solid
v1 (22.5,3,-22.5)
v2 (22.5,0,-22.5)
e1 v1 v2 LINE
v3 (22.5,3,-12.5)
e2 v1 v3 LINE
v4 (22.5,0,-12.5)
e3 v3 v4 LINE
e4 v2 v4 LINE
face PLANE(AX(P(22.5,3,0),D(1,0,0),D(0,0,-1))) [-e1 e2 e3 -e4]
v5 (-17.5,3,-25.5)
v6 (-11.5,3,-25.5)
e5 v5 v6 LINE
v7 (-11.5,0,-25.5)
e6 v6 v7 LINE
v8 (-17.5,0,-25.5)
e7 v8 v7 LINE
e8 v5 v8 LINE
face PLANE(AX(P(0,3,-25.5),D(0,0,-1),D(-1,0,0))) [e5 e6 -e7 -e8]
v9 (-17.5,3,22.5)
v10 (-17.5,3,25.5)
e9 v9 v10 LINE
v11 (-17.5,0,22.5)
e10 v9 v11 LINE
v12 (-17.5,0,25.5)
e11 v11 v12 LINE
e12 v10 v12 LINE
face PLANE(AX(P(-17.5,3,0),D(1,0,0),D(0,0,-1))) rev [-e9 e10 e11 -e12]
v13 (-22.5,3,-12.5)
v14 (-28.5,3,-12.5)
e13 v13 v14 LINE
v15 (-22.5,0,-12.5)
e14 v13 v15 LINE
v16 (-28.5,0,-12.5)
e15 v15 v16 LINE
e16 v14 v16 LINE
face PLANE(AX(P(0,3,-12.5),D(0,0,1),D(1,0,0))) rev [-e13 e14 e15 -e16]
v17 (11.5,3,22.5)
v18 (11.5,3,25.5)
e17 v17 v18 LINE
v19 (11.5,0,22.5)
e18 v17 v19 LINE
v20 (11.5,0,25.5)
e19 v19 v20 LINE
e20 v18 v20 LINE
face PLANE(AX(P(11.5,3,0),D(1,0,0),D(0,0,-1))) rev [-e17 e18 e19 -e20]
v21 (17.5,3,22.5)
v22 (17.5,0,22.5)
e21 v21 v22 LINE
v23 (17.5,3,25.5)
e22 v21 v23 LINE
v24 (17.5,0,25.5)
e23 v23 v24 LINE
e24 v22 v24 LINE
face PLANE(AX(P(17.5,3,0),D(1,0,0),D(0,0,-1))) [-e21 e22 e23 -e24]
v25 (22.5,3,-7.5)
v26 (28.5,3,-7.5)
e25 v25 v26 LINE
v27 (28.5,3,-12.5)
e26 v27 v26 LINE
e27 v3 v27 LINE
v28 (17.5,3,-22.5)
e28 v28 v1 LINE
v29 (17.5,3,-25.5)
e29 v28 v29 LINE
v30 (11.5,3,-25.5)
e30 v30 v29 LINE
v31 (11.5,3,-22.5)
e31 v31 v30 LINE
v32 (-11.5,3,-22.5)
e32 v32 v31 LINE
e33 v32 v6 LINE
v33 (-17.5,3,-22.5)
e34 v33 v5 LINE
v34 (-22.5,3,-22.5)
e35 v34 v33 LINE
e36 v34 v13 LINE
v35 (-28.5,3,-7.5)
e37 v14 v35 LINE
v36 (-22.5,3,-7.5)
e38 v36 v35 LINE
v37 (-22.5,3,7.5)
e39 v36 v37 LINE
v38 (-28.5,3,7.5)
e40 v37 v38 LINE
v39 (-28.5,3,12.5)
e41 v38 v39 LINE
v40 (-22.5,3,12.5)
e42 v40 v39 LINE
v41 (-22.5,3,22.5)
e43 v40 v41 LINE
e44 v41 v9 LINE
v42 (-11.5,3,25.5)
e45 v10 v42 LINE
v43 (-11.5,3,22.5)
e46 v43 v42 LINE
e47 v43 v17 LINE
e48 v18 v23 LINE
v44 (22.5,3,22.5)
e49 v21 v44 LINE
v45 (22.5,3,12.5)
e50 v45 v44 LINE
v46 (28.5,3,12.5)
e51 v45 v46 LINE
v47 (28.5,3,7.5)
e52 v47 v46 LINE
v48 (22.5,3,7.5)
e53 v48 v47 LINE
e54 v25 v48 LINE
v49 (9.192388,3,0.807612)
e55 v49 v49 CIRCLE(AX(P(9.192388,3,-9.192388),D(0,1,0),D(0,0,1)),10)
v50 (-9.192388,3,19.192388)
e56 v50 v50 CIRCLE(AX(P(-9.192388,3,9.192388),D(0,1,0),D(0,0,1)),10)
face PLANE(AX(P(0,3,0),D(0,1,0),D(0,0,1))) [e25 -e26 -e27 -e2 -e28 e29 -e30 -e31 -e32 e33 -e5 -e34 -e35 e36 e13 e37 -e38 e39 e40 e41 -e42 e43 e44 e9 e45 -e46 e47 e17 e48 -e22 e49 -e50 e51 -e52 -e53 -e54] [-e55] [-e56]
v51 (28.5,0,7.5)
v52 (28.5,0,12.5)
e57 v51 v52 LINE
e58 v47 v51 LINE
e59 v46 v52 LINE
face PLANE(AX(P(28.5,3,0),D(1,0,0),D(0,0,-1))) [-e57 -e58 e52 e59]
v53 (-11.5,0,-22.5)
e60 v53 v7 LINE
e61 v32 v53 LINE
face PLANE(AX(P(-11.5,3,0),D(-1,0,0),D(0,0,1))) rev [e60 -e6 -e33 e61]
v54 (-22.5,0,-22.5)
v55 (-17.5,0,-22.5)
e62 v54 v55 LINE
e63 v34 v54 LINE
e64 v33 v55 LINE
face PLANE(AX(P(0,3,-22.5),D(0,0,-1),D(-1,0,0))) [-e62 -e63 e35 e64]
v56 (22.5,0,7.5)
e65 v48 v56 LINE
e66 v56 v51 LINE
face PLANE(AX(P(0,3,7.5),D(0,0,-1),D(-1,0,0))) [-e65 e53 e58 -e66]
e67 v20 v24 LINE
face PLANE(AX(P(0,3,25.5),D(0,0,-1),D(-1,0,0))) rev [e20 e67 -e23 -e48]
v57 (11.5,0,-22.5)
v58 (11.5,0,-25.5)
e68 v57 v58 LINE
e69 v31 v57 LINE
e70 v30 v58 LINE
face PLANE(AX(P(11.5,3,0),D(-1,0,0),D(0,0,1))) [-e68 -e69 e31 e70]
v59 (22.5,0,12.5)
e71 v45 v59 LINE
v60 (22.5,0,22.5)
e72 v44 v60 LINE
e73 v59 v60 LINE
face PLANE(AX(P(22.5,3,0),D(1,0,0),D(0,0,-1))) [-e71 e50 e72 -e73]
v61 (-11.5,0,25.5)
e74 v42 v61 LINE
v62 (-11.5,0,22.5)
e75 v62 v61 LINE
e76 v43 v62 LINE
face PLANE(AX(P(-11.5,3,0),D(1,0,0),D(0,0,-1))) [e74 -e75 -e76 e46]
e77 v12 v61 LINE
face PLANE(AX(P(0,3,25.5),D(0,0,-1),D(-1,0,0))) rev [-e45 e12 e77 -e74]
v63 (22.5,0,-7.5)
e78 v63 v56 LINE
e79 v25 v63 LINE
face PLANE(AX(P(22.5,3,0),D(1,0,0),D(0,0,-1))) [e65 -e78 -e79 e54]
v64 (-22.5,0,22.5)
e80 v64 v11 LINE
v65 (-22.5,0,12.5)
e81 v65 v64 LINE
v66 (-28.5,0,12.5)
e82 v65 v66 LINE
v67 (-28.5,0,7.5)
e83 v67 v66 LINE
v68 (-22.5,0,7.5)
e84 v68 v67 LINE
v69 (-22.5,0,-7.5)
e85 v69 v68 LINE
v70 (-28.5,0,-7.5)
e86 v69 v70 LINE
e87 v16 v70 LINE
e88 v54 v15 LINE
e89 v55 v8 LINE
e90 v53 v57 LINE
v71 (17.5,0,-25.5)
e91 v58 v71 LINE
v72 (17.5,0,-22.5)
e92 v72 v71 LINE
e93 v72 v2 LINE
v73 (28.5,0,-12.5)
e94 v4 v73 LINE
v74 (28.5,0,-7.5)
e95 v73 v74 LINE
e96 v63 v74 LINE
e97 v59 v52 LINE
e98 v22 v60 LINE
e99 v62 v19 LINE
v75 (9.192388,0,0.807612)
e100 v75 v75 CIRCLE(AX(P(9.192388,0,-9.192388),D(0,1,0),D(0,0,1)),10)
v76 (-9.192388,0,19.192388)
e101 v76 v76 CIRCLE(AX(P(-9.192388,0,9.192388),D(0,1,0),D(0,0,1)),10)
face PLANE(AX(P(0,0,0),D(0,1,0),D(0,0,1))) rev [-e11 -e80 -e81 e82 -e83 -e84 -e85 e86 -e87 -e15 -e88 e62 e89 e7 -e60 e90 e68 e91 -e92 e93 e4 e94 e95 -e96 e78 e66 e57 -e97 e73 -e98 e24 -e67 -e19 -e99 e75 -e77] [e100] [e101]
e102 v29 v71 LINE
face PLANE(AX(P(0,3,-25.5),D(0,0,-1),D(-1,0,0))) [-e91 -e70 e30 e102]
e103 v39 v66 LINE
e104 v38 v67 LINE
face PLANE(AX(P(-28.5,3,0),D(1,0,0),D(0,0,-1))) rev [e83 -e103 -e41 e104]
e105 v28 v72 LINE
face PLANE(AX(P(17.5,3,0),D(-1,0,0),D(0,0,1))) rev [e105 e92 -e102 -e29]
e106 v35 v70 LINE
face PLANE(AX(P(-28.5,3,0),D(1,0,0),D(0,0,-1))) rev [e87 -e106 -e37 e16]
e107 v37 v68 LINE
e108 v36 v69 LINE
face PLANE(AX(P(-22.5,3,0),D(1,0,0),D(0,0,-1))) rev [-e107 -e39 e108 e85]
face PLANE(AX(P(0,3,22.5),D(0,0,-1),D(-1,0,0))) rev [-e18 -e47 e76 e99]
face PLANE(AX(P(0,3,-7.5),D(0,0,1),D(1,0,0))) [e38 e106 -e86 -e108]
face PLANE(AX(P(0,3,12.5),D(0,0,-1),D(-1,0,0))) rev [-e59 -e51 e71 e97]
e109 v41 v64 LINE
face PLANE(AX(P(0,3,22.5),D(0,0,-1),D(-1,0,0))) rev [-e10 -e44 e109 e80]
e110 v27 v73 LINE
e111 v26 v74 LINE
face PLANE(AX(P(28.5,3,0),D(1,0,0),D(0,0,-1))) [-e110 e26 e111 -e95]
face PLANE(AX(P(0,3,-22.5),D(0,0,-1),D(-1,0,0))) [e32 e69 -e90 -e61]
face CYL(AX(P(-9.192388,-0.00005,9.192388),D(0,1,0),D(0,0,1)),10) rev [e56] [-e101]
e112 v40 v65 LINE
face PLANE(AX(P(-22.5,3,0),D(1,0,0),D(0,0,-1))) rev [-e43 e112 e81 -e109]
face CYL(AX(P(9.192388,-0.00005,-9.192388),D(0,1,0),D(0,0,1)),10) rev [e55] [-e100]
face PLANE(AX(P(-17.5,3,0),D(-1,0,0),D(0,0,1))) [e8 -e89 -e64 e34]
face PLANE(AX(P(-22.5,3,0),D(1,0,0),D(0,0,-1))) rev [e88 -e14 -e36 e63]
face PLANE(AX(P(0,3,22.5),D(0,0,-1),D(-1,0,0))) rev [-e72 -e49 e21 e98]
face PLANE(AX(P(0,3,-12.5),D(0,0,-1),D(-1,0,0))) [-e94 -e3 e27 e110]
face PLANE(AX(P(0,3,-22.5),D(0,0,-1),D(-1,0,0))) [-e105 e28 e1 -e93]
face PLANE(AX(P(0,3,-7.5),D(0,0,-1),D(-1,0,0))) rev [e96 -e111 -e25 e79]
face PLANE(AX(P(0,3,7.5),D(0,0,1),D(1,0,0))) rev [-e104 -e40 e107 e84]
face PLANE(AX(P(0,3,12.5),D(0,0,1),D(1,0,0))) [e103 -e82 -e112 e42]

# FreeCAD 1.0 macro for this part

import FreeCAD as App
import Part
import Sketcher


def add_polygon(sketch, points):
    """Adds a closed chain of lines whose ends are joined by coincident constraints."""
    first, n = sketch.GeometryCount, len(points)
    for a, b in zip(points, points[1:] + points[:1]):
        sketch.addGeometry(Part.LineSegment(App.Vector(*a, 0), App.Vector(*b, 0)), False)
    for i in range(n):
        sketch.addConstraint(Sketcher.Constraint("Coincident", first + i, 2, first + (i + 1) % n, 1))

doc = App.newDocument("Part")
body = doc.addObject("PartDesign::Body", "Body")

sketch1 = body.newObject("Sketcher::SketchObject", "Sketch")
sketch1.AttachmentSupport = (doc.getObject("XZ_Plane"), [""])
sketch1.MapMode = "FlatFace"
add_polygon(sketch1, [(-22.5, -22.5), (-22.5, 22.5), (-17.5, 22.5), (-17.5, 25.5), (-11.5, 25.5), (-11.5, 22.5), (11.5, 22.5), (11.5, 25.5), (17.5, 25.5), (17.5, 22.5), (22.5, 22.5), (22.5, -22.5), (17.5, -22.5), (17.5, -25.5), (11.5, -25.5), (11.5, -22.5), (-11.5, -22.5), (-11.5, -25.5), (-17.5, -25.5), (-17.5, -22.5)])
sketch1.addConstraint([
    Sketcher.Constraint("Vertical", 0),
    Sketcher.Constraint("Horizontal", 1),
    Sketcher.Constraint("Vertical", 2),
    Sketcher.Constraint("Horizontal", 3),
    Sketcher.Constraint("Vertical", 4),
    Sketcher.Constraint("Horizontal", 5),
    Sketcher.Constraint("Vertical", 6),
    Sketcher.Constraint("Horizontal", 7),
    Sketcher.Constraint("Vertical", 8),
    Sketcher.Constraint("Horizontal", 9),
    Sketcher.Constraint("Vertical", 10),
    Sketcher.Constraint("Horizontal", 11),
    Sketcher.Constraint("Vertical", 12),
    Sketcher.Constraint("Horizontal", 13),
    Sketcher.Constraint("Vertical", 14),
    Sketcher.Constraint("Horizontal", 15),
    Sketcher.Constraint("Vertical", 16),
    Sketcher.Constraint("Horizontal", 17),
    Sketcher.Constraint("Vertical", 18),
    Sketcher.Constraint("Horizontal", 19),
    Sketcher.Constraint("Symmetric", 0, 2, 10, 2, -1, 1),
    Sketcher.Constraint("Symmetric", 2, 2, 12, 2, -1, 1),
    Sketcher.Constraint("Symmetric", 4, 2, 14, 2, -1, 1),
    Sketcher.Constraint("Symmetric", 6, 2, 16, 2, -1, 1),
    Sketcher.Constraint("Symmetric", 8, 2, 18, 2, -1, 1),
    Sketcher.Constraint("Symmetric", 3, 2, 6, 2, -2),
    Sketcher.Constraint("Symmetric", 1, 2, 8, 2, -2),
    Sketcher.Constraint("Horizontal", 1, 2, 4, 2),
    Sketcher.Constraint("DistanceX", 1, 1, 1, 2, 5.0),
    Sketcher.Constraint("DistanceX", 3, 1, 3, 2, 6.0),
    Sketcher.Constraint("DistanceX", 5, 1, 5, 2, 23.0),
    Sketcher.Constraint("DistanceY", 0, 1, 0, 2, 45.0),
    Sketcher.Constraint("DistanceY", 2, 1, 2, 2, 3.0),
])
pad1 = body.newObject("PartDesign::Pad", "Pad")
pad1.Profile = sketch1
pad1.Length = 3
pad1.Reversed = True

sketch2 = body.newObject("Sketcher::SketchObject", "Sketch001")
sketch2.AttachmentSupport = (doc.getObject("XZ_Plane"), [""])
sketch2.MapMode = "FlatFace"
add_polygon(sketch2, [(22, 8), (22, 12), (28, 12), (28, 8)])
add_polygon(sketch2, [(-28, 8), (-28, 12), (-22, 12), (-22, 8)])
sketch2.addConstraint([
    Sketcher.Constraint("Vertical", 0),
    Sketcher.Constraint("Horizontal", 1),
    Sketcher.Constraint("Vertical", 2),
    Sketcher.Constraint("Horizontal", 3),
    Sketcher.Constraint("Vertical", 4),
    Sketcher.Constraint("Horizontal", 5),
    Sketcher.Constraint("Vertical", 6),
    Sketcher.Constraint("Horizontal", 7),
    Sketcher.Constraint("Symmetric", 1, 2, 4, 2, -2),
    Sketcher.Constraint("Symmetric", 3, 2, 6, 2, -2),
    Sketcher.Constraint("DistanceX", 1, 1, 1, 2, 6.0),
    Sketcher.Constraint("DistanceY", 0, 1, 0, 2, 5.0),
    Sketcher.Constraint("DistanceX", 4, 2, 0, 2, 51.0),
    Sketcher.Constraint("DistanceY", -1, 1, 0, 2, 12.5),
])
pad2 = body.newObject("PartDesign::Pad", "Pad001")
pad2.Profile = sketch2
pad2.Length = 3
pad2.Reversed = True

sketch3 = body.newObject("Sketcher::SketchObject", "Sketch002")
sketch3.AttachmentSupport = (doc.getObject("XZ_Plane"), [""])
sketch3.MapMode = "FlatFace"
sketch3.AttachmentOffset = App.Placement(App.Vector(0, 0, -3), App.Rotation())
sketch3.addGeometry([
    Part.Circle(App.Vector(-9, 9, 0), App.Vector(0, 0, 1), 10),
    Part.Circle(App.Vector(9, -9, 0), App.Vector(0, 0, 1), 10),
], False)
sketch3.addConstraint([
    Sketcher.Constraint("Equal", 0, 1),
    Sketcher.Constraint("Symmetric", 0, 3, 1, 3, -1, 1),
    Sketcher.Constraint("Diameter", 0, 20.0),
    Sketcher.Constraint("DistanceX", 0, 3, -1, 1, 9.192388),
    Sketcher.Constraint("DistanceY", -1, 1, 0, 3, 9.192388),
])
pocket1 = body.newObject("PartDesign::Pocket", "Pocket")
pocket1.Profile = sketch3
pocket1.Type = "ThroughAll"
pocket1.Reversed = True

sketch4 = body.newObject("Sketcher::SketchObject", "Sketch003")
sketch4.AttachmentSupport = (doc.getObject("XZ_Plane"), [""])
sketch4.MapMode = "FlatFace"
add_polygon(sketch4, [(-28, -12), (-28, -8), (-22, -8), (-22, -12)])
add_polygon(sketch4, [(22, -12), (22, -8), (28, -8), (28, -12)])
sketch4.addConstraint([
    Sketcher.Constraint("Vertical", 0),
    Sketcher.Constraint("Horizontal", 1),
    Sketcher.Constraint("Vertical", 2),
    Sketcher.Constraint("Horizontal", 3),
    Sketcher.Constraint("Vertical", 4),
    Sketcher.Constraint("Horizontal", 5),
    Sketcher.Constraint("Vertical", 6),
    Sketcher.Constraint("Horizontal", 7),
    Sketcher.Constraint("Symmetric", 1, 2, 4, 2, -2),
    Sketcher.Constraint("Symmetric", 3, 2, 6, 2, -2),
    Sketcher.Constraint("DistanceX", 1, 1, 1, 2, 6.0),
    Sketcher.Constraint("DistanceY", 0, 1, 0, 2, 5.0),
    Sketcher.Constraint("DistanceX", 1, 2, 4, 2, 45.0),
    Sketcher.Constraint("DistanceY", 0, 2, -1, 1, 7.5),
])
pad3 = body.newObject("PartDesign::Pad", "Pad002")
pad3.Profile = sketch4
pad3.Length = 3
pad3.Reversed = True

doc.recompute()
